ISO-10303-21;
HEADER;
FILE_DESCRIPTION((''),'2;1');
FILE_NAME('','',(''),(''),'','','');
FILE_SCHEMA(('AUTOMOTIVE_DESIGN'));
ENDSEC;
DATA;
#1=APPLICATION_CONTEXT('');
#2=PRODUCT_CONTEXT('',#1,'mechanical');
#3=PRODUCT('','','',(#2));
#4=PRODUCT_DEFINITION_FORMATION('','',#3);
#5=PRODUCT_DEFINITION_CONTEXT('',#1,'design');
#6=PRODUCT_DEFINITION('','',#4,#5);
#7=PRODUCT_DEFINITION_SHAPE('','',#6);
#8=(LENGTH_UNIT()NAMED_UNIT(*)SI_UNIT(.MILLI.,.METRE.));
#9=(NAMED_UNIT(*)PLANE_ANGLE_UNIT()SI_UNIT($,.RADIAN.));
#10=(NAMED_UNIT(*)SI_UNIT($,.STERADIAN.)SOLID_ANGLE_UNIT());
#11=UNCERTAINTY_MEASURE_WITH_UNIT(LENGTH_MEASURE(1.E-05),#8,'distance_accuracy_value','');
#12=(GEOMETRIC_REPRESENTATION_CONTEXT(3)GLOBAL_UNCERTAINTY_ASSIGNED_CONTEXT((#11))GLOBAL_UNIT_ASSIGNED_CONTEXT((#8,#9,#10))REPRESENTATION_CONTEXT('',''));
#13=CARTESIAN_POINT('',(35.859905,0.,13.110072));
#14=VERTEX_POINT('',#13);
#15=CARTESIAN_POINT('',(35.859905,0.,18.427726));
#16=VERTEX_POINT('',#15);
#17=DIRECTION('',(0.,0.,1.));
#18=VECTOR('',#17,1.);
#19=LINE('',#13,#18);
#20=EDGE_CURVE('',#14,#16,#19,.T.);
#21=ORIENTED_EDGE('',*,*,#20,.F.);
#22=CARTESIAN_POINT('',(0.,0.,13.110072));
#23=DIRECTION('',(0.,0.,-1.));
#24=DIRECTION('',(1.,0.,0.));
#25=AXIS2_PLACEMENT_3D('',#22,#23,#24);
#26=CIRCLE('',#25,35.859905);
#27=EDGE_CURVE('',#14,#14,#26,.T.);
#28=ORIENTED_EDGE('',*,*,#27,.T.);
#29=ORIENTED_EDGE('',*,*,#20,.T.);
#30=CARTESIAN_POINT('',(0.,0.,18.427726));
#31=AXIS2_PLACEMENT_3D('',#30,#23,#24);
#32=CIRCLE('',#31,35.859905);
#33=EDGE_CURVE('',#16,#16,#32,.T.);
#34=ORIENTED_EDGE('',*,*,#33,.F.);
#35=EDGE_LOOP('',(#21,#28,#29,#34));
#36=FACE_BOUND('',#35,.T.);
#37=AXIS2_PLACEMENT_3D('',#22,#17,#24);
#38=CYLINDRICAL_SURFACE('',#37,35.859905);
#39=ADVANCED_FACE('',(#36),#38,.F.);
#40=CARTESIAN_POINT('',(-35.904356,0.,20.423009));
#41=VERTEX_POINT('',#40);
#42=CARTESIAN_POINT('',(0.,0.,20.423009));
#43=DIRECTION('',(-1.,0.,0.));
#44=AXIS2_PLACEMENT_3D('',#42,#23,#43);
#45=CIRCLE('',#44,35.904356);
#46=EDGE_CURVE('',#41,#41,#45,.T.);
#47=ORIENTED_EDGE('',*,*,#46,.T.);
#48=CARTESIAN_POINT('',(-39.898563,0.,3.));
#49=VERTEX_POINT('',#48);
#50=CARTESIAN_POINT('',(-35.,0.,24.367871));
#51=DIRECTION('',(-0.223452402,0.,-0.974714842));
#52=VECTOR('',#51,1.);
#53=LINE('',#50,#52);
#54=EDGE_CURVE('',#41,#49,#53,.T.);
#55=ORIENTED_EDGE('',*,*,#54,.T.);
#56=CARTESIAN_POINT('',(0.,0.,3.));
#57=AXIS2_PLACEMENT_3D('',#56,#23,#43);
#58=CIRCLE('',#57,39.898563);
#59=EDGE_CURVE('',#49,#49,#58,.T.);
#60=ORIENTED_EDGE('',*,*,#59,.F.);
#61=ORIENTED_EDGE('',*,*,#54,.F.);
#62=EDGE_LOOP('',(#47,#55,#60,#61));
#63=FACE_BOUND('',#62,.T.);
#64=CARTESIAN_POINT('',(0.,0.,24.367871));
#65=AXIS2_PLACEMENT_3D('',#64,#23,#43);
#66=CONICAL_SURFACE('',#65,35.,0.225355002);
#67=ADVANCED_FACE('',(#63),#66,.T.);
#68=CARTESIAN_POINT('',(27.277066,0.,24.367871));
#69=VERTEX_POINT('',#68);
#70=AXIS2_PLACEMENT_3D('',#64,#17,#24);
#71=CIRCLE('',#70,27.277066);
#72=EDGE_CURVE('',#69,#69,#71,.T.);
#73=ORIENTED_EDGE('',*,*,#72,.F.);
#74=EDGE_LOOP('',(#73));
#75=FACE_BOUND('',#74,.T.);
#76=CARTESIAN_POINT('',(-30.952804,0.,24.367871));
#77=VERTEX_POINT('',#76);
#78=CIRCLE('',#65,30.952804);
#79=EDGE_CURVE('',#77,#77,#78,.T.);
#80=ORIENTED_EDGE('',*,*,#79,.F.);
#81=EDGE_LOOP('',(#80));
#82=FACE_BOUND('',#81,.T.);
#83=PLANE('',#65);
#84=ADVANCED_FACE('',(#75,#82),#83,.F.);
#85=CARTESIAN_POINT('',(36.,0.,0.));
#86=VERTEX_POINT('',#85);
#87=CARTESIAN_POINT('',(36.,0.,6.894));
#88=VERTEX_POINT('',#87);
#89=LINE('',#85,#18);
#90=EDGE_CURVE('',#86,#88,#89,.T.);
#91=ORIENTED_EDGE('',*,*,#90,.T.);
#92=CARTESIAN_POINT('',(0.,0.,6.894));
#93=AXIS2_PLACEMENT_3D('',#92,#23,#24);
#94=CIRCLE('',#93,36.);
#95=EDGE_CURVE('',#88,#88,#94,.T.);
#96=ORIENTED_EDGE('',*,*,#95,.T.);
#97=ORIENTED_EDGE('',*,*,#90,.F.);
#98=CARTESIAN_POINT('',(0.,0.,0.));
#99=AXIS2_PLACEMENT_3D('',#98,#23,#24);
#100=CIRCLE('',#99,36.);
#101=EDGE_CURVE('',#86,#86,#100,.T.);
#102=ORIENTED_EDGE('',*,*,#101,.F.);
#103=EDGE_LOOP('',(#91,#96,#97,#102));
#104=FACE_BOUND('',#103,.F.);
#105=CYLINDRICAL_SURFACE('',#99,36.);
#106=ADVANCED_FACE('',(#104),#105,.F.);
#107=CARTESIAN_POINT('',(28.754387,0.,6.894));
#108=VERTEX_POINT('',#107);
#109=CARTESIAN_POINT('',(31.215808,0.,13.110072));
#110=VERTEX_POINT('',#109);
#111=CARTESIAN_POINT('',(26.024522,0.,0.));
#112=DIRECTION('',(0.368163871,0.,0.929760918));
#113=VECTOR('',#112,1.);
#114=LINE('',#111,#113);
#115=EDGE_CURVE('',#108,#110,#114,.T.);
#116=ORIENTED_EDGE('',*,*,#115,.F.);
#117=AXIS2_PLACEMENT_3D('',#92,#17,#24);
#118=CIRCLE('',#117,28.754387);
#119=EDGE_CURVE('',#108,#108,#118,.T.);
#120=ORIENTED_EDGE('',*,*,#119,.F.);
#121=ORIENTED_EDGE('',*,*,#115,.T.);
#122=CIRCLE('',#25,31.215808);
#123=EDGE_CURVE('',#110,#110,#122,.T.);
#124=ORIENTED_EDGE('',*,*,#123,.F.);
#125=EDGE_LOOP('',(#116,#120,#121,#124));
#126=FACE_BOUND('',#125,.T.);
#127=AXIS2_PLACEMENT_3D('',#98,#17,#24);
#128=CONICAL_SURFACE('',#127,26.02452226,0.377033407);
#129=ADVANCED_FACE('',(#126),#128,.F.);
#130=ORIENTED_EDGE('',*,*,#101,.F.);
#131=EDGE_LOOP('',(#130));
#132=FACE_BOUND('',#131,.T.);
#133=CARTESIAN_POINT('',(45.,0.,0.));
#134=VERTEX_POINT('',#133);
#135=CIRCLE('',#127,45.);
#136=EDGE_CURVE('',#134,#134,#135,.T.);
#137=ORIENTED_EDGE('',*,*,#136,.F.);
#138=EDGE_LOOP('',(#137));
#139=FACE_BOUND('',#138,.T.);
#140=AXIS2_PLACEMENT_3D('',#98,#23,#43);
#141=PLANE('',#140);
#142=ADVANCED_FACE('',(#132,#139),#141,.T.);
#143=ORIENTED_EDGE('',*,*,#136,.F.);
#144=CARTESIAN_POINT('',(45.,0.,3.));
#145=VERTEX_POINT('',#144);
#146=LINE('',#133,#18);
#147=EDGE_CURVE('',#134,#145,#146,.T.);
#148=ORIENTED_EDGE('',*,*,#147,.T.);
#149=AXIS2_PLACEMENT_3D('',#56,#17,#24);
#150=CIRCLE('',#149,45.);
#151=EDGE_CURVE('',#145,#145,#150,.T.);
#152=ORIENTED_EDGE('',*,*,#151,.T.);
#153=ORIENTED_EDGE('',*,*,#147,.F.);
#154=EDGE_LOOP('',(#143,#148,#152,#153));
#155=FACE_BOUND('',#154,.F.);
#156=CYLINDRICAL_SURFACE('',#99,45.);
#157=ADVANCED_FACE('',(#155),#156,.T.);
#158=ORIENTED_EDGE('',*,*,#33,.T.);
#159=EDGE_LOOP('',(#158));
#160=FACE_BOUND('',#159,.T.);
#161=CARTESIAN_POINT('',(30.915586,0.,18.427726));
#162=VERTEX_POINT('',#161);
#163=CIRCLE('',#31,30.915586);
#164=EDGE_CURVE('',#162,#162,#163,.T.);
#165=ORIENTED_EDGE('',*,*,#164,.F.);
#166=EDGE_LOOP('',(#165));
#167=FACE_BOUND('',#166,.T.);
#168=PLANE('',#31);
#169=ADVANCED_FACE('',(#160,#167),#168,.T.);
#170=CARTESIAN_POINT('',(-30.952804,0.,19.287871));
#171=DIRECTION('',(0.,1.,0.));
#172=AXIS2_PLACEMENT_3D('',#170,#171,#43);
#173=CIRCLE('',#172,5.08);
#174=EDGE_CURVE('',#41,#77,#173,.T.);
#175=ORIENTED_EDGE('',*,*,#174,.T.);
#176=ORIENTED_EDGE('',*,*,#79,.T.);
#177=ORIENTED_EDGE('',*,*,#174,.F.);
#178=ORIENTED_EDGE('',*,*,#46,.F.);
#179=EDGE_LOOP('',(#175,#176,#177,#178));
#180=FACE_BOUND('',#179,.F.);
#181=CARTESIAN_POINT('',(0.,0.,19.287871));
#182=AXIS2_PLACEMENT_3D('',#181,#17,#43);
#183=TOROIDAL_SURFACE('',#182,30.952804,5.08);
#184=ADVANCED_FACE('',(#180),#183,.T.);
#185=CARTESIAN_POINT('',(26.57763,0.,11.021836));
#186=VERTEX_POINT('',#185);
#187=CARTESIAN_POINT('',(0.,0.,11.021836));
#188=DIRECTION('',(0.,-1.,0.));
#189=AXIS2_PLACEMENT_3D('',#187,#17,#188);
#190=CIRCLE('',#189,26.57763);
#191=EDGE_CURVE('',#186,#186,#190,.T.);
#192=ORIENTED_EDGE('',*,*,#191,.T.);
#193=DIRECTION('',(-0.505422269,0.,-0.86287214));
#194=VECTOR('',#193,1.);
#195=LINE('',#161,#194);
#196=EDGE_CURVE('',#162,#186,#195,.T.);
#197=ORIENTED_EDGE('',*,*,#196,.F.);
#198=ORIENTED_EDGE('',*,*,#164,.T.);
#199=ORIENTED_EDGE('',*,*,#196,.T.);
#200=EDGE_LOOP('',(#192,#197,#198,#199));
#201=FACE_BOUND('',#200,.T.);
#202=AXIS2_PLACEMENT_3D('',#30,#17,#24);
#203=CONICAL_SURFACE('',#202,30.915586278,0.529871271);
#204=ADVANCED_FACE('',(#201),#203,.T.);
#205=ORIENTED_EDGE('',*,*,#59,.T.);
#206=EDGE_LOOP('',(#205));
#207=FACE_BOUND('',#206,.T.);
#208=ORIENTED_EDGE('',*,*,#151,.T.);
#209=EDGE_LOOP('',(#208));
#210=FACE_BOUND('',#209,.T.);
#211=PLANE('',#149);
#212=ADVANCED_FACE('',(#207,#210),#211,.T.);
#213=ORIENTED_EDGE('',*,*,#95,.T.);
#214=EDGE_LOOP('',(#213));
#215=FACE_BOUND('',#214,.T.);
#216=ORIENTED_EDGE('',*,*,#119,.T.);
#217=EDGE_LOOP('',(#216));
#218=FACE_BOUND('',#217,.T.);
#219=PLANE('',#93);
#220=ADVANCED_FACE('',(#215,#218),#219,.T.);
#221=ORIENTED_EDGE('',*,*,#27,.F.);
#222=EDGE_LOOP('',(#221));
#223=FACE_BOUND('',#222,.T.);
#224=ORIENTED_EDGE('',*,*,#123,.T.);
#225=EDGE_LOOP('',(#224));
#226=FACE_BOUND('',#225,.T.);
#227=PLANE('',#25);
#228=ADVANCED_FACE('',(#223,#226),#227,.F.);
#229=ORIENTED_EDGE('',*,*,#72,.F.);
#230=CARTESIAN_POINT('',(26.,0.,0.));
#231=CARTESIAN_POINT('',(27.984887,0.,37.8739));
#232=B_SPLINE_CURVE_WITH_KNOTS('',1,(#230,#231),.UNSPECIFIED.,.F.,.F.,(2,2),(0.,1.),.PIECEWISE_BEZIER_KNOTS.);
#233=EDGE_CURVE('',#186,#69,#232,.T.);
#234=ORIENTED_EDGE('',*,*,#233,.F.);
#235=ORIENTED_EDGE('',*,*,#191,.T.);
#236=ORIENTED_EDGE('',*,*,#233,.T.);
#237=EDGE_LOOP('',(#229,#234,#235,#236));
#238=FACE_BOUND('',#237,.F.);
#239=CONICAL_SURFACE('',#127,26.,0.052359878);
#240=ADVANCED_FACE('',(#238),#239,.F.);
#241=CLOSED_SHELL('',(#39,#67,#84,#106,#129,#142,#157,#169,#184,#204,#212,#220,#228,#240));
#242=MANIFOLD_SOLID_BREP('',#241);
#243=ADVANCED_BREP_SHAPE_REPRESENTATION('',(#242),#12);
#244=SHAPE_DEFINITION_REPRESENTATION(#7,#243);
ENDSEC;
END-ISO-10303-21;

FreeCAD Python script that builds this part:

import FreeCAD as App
import Part
import Sketcher
Q = App.Units.Quantity


def edges_at(feature, points):
    """Names of the edges that pass closest to the given points."""
    edges = feature.Shape.Edges
    near = lambda p: min(range(len(edges)), key=lambda i: edges[i].distToShape(Part.Vertex(*p))[0])
    return sorted({f"Edge{near(p) + 1}" for p in points})

doc = App.newDocument("Part")
body = doc.addObject("PartDesign::Body", "Body")

# Sketch on XY plane
sketch1 = body.newObject("Sketcher::SketchObject", "Sketch")
sketch1.AttachmentSupport = (doc.getObject("XY_Plane"), [""])
sketch1.MapMode = "FlatFace"
sketch1.addGeometry(Part.Circle(App.Vector(0, 0, 0), App.Vector(0, 0, 1), 45), False)
sketch1.addConstraint([
    Sketcher.Constraint("Coincident", 0, 3, -1, 1),
    Sketcher.Constraint("Diameter", 0, Q("90 mm")),
])
pad1 = body.newObject("PartDesign::Pad", "Pad")
pad1.Profile = sketch1
pad1.Length = 3

# Sketch on XZ plane
sketch2 = body.newObject("Sketcher::SketchObject", "Sketch001")
sketch2.AttachmentSupport = (doc.getObject("XZ_Plane"), [""])
sketch2.MapMode = "FlatFace"
sketch2.addGeometry([
    Part.LineSegment(App.Vector(-41, 0, 0), App.Vector(0, 0, 0)),
    Part.LineSegment(App.Vector(0, 0, 0), App.Vector(0, 24, 0)),
    Part.LineSegment(App.Vector(0, 24, 0), App.Vector(-35, 24, 0)),
    Part.LineSegment(App.Vector(-35, 24, 0), App.Vector(-41, 0, 0)),
], False)
sketch2.addConstraint([
    Sketcher.Constraint("Coincident", 0, 2, 1, 1),
    Sketcher.Constraint("Coincident", 1, 2, 2, 1),
    Sketcher.Constraint("Coincident", 2, 2, 3, 1),
    Sketcher.Constraint("Coincident", 3, 2, 0, 1),
    Sketcher.Constraint("Horizontal", 0),
    Sketcher.Constraint("Vertical", 1),
    Sketcher.Constraint("Horizontal", 2),
    Sketcher.Constraint("Coincident", 0, 2, -1, 1),
    Sketcher.Constraint("DistanceX", 2, 2, 2, 1, Q("35 mm")),
    Sketcher.Constraint("Distance", 3, Q("25 mm")),
    Sketcher.Constraint("DistanceX", 0, 1, 0, 2, Q("40.58631 mm")),
])
revolution = body.newObject("PartDesign::Revolution", "Revolution")
revolution.Profile = sketch2
revolution.ReferenceAxis = (sketch2, ["V_Axis"])
revolution.Angle = 360
doc.recompute()

fillet = body.newObject("PartDesign::Fillet", "Fillet")
fillet.Base = (revolution, edges_at(revolution, [(35, 0, 24.368)]))
fillet.Radius = 5.08

# Sketch on XY plane
sketch3 = body.newObject("Sketcher::SketchObject", "Sketch002")
sketch3.AttachmentSupport = (doc.getObject("XY_Plane"), [""])
sketch3.MapMode = "FlatFace"
sketch3.addGeometry(Part.Circle(App.Vector(0, 0, 0), App.Vector(0, 0, 1), 26), False)
sketch3.addConstraint([
    Sketcher.Constraint("Coincident", 0, 3, -1, 1),
    Sketcher.Constraint("Diameter", 0, Q("52 mm")),
])
pocket1 = body.newObject("PartDesign::Pocket", "Pocket")
pocket1.Profile = sketch3
pocket1.Length = 75.7478
pocket1.Midplane = True
pocket1.TaperAngle = 3

# Sketch on XZ plane
sketch4 = body.newObject("Sketcher::SketchObject", "Sketch003")
sketch4.AttachmentSupport = (doc.getObject("XZ_Plane"), [""])
sketch4.MapMode = "FlatFace"
sketch4.addGeometry([
    Part.LineSegment(App.Vector(35.9, 18.4, 0), App.Vector(30.9, 18.4, 0)),  # 0
    Part.LineSegment(App.Vector(30.9, 18.4, 0), App.Vector(20.1, 0, 0)),  # 1
    Part.LineSegment(App.Vector(20.1, 0, 0), App.Vector(26, 0, 0)),  # 2
    Part.LineSegment(App.Vector(26, 0, 0), App.Vector(31.2, 13.1, 0)),  # 3
    Part.LineSegment(App.Vector(31.2, 13.1, 0), App.Vector(35.9, 13.1, 0)),  # 4
    Part.LineSegment(App.Vector(35.9, 13.1, 0), App.Vector(35.9, 18.4, 0)),  # 5
], False)
sketch4.addConstraint([
    Sketcher.Constraint("Coincident", 0, 2, 1, 1),
    Sketcher.Constraint("Coincident", 1, 2, 2, 1),
    Sketcher.Constraint("Coincident", 2, 2, 3, 1),
    Sketcher.Constraint("Coincident", 3, 2, 4, 1),
    Sketcher.Constraint("Coincident", 4, 2, 5, 1),
    Sketcher.Constraint("Coincident", 5, 2, 0, 1),
    Sketcher.Constraint("Horizontal", 0),
    Sketcher.Constraint("Horizontal", 2),
    Sketcher.Constraint("Horizontal", 4),
    Sketcher.Constraint("Vertical", 5),
    Sketcher.Constraint("PointOnObject", 1, 2, -1),
    Sketcher.Constraint("DistanceX", 0, 2, 0, 1, Q("4.944319 mm")),
    Sketcher.Constraint("DistanceX", 2, 1, 2, 2, Q("5.902868 mm")),
    Sketcher.Constraint("DistanceX", 4, 1, 4, 2, Q("4.644097 mm")),
    Sketcher.Constraint("DistanceY", 5, 1, 5, 2, Q("5.317654 mm")),
    Sketcher.Constraint("DistanceX", -1, 1, 3, 2, Q("31.215808 mm")),
    Sketcher.Constraint("DistanceX", 1, 2, 0, 2, Q("10.793932 mm")),
    Sketcher.Constraint("Distance", 1, Q("21.356265 mm")),
])
groove = body.newObject("PartDesign::Groove", "Groove")
groove.Profile = sketch4
groove.ReferenceAxis = (sketch4, ["V_Axis"])
groove.Angle = 360

# Sketch on XY plane
sketch5 = body.newObject("Sketcher::SketchObject", "Sketch004")
sketch5.AttachmentSupport = (doc.getObject("XY_Plane"), [""])
sketch5.MapMode = "FlatFace"
sketch5.addGeometry(Part.Circle(App.Vector(0, 0, 0), App.Vector(0, 0, 1), 36), False)
sketch5.addConstraint([
    Sketcher.Constraint("Coincident", 0, 3, -1, 1),
    Sketcher.Constraint("Diameter", 0, Q("72 mm")),
])
pocket2 = body.newObject("PartDesign::Pocket", "Pocket001")
pocket2.Profile = sketch5
pocket2.Length = 6.894
pocket2.Reversed = True

doc.recompute()
